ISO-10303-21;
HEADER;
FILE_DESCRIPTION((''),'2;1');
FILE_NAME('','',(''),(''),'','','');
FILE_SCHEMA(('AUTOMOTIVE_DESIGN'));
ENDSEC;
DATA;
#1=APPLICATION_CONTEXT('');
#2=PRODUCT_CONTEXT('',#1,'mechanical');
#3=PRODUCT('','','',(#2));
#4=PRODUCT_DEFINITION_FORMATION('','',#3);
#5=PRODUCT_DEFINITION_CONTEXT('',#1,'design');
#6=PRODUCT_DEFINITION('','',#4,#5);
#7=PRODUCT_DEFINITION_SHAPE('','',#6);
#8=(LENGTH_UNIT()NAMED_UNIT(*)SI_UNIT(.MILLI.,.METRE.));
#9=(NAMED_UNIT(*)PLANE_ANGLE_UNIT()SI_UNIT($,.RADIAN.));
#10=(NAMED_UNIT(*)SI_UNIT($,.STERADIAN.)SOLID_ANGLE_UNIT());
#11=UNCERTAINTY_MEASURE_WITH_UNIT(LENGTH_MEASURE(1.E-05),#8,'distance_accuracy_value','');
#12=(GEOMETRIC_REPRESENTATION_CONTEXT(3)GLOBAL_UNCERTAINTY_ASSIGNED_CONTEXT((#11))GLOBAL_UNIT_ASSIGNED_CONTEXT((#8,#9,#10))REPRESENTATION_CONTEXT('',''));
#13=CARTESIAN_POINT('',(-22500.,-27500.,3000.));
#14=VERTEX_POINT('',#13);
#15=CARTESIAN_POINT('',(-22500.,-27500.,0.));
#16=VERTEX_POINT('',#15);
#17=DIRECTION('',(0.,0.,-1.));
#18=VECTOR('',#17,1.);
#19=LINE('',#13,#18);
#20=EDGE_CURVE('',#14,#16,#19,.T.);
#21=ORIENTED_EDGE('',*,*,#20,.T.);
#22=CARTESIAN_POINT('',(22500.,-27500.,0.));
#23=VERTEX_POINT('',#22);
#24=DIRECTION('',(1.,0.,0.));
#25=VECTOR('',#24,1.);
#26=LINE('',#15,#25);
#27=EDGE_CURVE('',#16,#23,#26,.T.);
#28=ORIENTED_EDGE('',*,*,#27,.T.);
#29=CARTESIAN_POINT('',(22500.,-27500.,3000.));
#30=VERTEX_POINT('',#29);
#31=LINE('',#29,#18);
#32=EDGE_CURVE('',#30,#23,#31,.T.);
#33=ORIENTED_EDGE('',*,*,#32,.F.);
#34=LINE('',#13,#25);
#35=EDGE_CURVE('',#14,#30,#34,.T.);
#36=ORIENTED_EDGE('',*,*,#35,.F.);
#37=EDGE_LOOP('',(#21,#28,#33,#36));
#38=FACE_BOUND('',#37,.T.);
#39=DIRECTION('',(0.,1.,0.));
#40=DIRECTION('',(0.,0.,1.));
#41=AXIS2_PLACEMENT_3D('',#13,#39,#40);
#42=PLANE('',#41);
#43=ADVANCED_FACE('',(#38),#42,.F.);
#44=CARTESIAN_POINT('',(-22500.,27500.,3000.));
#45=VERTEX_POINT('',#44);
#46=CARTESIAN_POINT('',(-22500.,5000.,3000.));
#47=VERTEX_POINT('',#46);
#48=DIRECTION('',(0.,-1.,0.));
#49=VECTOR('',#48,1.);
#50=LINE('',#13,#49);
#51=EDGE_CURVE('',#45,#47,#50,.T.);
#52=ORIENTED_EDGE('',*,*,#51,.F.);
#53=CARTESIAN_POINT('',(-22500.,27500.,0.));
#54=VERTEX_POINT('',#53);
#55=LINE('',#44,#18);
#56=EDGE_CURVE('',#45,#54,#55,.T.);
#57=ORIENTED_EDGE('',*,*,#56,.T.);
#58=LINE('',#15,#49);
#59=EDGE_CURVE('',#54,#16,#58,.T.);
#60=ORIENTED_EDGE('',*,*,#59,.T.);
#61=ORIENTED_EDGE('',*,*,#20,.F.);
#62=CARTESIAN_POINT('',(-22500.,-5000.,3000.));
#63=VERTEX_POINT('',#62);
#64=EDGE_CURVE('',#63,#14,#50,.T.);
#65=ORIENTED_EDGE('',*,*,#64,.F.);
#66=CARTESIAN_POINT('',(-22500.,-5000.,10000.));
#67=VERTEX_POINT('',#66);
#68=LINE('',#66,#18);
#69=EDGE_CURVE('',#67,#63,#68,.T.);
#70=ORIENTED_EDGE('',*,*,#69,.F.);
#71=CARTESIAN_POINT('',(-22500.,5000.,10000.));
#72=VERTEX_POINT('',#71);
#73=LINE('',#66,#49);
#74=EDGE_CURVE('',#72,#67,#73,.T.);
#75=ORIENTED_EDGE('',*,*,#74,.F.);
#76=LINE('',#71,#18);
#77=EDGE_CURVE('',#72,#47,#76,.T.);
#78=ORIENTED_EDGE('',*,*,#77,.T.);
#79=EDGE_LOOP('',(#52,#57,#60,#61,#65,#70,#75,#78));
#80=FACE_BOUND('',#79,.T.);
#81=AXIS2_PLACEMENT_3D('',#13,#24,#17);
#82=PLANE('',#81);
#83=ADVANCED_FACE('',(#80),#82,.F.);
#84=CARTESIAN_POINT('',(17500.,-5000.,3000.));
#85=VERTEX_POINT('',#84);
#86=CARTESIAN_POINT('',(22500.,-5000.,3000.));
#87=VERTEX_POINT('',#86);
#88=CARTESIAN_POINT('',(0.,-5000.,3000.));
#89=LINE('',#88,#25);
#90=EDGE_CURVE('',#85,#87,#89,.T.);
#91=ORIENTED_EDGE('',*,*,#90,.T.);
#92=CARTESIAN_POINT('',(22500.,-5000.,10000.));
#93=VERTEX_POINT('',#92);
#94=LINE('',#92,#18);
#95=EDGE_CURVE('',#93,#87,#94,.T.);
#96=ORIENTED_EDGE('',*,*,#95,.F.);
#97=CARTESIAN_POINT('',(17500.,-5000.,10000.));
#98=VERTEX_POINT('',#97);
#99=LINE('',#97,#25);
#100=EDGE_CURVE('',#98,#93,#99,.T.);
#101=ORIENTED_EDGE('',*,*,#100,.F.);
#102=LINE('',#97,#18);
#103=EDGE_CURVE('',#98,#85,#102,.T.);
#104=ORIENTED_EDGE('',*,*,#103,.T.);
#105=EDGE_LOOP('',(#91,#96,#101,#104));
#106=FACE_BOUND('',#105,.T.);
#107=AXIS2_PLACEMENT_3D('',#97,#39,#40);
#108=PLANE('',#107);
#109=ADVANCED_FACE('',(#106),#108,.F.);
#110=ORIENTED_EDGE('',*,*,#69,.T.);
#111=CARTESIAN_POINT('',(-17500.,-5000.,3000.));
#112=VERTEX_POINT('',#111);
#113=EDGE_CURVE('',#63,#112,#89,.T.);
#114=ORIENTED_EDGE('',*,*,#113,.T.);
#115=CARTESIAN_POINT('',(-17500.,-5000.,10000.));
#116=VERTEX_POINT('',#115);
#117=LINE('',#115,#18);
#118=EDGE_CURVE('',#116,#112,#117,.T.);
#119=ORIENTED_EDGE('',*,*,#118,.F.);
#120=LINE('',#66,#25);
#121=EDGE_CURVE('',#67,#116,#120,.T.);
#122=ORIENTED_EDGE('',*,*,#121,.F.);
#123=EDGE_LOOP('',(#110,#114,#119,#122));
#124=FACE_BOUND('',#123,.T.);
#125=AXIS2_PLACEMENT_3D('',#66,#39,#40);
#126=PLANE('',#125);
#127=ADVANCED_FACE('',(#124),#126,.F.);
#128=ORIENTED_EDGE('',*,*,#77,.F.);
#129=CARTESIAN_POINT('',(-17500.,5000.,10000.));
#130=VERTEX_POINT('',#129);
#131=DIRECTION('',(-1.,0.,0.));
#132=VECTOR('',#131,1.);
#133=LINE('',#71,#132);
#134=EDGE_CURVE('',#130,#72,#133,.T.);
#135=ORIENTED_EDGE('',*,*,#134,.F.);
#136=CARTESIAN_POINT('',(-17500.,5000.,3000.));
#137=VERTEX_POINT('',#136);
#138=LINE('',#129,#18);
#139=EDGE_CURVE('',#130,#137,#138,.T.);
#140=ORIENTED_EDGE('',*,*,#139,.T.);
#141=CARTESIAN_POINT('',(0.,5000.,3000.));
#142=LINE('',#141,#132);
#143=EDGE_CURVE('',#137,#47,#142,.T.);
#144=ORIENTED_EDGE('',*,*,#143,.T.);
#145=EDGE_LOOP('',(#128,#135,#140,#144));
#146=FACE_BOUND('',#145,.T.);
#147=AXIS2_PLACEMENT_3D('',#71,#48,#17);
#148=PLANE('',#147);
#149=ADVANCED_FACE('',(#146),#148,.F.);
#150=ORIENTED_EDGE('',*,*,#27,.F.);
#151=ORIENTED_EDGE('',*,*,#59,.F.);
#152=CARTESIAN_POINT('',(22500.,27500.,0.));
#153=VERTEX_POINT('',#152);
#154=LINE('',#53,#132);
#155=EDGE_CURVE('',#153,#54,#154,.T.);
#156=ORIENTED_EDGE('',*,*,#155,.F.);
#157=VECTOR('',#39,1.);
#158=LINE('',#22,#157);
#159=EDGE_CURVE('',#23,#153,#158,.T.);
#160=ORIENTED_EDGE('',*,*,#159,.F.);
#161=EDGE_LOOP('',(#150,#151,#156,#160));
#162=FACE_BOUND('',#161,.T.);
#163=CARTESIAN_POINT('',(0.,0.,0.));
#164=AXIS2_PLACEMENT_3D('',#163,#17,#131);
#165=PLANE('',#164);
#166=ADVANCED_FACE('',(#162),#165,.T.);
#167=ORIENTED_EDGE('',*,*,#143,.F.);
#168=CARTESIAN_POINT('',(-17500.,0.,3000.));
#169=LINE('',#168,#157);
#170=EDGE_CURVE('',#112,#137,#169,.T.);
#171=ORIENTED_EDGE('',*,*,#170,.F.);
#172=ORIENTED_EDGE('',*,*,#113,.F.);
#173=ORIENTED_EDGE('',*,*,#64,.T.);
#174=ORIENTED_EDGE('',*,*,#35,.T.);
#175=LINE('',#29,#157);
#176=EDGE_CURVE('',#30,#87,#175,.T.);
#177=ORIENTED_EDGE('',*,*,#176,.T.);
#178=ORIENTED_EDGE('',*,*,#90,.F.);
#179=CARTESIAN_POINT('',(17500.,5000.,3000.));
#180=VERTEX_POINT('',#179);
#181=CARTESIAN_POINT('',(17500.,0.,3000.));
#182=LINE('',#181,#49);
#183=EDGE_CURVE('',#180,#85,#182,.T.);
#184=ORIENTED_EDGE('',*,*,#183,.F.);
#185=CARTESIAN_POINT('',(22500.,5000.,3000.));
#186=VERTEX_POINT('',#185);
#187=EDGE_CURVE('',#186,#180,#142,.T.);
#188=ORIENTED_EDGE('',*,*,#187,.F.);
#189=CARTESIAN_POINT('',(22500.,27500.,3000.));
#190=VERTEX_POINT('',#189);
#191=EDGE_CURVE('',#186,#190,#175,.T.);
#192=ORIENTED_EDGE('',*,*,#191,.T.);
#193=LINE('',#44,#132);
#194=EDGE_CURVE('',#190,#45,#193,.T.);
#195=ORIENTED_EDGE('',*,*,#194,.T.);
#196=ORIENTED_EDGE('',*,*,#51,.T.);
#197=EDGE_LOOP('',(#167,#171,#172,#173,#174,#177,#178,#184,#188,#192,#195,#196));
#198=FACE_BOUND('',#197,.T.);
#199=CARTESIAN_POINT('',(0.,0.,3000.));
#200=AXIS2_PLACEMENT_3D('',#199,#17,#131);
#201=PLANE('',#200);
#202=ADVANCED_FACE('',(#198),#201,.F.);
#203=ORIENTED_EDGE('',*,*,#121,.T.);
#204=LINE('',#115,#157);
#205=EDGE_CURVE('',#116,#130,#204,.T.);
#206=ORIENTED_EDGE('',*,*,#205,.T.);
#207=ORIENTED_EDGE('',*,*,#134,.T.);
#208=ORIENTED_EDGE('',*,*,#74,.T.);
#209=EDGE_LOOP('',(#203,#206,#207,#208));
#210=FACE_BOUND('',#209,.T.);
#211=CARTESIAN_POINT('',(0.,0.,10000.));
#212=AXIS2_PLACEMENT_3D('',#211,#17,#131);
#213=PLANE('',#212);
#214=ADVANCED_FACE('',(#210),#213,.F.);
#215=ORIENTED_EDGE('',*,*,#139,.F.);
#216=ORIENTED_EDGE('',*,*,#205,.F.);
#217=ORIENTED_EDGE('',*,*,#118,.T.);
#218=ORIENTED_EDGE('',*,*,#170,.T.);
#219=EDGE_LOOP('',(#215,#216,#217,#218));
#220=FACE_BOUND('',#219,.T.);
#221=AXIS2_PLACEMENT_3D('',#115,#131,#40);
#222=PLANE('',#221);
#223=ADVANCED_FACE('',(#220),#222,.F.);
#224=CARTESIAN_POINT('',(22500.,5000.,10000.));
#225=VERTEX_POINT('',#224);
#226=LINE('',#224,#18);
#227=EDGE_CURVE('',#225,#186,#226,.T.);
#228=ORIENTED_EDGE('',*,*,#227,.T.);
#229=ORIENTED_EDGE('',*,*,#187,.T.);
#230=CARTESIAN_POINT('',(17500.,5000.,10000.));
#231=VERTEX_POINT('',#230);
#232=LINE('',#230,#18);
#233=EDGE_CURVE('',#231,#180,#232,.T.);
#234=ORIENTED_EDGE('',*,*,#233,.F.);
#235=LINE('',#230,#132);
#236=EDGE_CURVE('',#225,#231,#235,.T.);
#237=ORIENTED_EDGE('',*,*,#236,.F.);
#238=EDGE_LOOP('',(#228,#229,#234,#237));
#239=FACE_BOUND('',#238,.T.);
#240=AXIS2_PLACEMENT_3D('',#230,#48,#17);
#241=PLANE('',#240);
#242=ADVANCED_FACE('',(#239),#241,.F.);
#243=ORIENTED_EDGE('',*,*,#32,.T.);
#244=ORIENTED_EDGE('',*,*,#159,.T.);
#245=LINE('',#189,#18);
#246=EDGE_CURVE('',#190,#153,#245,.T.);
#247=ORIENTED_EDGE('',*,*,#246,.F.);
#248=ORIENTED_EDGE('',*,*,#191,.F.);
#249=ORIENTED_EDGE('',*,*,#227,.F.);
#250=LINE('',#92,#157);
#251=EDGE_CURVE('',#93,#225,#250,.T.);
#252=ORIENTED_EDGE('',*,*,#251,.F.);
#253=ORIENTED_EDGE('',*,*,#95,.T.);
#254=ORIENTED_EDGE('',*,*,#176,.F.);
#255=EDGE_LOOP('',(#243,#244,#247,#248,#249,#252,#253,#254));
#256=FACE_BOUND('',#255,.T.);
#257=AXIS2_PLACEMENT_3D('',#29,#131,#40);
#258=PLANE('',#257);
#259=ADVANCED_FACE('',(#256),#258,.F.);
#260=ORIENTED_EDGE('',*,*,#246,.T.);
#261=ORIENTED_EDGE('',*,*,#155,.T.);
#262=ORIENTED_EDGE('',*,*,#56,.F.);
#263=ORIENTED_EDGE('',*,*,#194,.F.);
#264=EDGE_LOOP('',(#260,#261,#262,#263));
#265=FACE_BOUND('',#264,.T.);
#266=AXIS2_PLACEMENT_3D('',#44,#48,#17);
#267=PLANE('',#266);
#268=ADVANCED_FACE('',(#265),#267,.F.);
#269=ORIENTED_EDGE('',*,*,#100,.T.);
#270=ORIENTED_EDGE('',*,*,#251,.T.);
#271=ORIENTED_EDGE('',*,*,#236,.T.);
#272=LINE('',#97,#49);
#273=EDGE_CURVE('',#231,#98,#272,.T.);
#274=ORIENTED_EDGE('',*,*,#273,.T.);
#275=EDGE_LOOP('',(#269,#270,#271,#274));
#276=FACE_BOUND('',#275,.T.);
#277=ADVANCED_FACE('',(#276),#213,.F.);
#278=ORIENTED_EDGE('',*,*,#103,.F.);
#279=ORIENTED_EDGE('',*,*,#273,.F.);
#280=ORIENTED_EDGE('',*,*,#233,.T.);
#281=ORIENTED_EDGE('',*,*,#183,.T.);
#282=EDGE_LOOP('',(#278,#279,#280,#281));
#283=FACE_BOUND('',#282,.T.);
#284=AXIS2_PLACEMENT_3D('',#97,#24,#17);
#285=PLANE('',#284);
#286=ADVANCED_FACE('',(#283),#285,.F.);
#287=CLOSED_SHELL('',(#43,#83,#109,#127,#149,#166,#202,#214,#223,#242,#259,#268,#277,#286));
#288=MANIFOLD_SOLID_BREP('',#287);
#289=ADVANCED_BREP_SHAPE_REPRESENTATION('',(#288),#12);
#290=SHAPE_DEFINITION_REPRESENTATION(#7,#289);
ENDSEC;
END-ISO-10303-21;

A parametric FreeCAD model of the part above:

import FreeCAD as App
import Part
import Sketcher
from FreeCAD import Vector
Q = App.Units.Quantity

doc = App.newDocument("Part")
body = doc.addObject("PartDesign::Body", "Body")

sketch1 = body.newObject("Sketcher::SketchObject", "Sketch")
sketch1.AttachmentSupport = (doc.getObject("XY_Plane"), [""])
sketch1.MapMode = "FlatFace"
sketch1.addGeometry([
    Part.LineSegment(Vector(-22500, 27500, 0), Vector(-22500, -27500, 0)),
    Part.LineSegment(Vector(-22500, -27500, 0), Vector(22500, -27500, 0)),
    Part.LineSegment(Vector(22500, -27500, 0), Vector(22500, 27500, 0)),
    Part.LineSegment(Vector(22500, 27500, 0), Vector(-22500, 27500, 0)),
], False)
sketch1.addConstraint([
    Sketcher.Constraint("Coincident", 0, 2, 1, 1),
    Sketcher.Constraint("Coincident", 1, 2, 2, 1),
    Sketcher.Constraint("Coincident", 2, 2, 3, 1),
    Sketcher.Constraint("Coincident", 3, 2, 0, 1),
    Sketcher.Constraint("Vertical", 0),
    Sketcher.Constraint("Horizontal", 1),
    Sketcher.Constraint("Vertical", 2),
    Sketcher.Constraint("Horizontal", 3),
    Sketcher.Constraint("Symmetric", 0, 2, 2, 2, -1, 1),
    Sketcher.Constraint("DistanceX", 1, 1, 1, 2, Q("45000 mm")),
    Sketcher.Constraint("DistanceY", 0, 2, 0, 1, Q("55000 mm")),
])
pad1 = body.newObject("PartDesign::Pad", "Pad")
pad1.Profile = sketch1
pad1.Length = 3000

sketch2 = body.newObject("Sketcher::SketchObject", "Sketch001")
sketch2.AttachmentSupport = (doc.getObject("XY_Plane"), [""])
sketch2.MapMode = "FlatFace"
sketch2.addGeometry([
    Part.LineSegment(Vector(-22500, 5000, 0), Vector(-22500, -5000, 0)),
    Part.LineSegment(Vector(-22500, -5000, 0), Vector(-17500, -5000, 0)),
    Part.LineSegment(Vector(-17500, -5000, 0), Vector(-17500, 5000, 0)),
    Part.LineSegment(Vector(-17500, 5000, 0), Vector(-22500, 5000, 0)),
    Part.LineSegment(Vector(17500, 5000, 0), Vector(17500, -5000, 0)),
    Part.LineSegment(Vector(17500, -5000, 0), Vector(22500, -5000, 0)),
    Part.LineSegment(Vector(22500, -5000, 0), Vector(22500, 5000, 0)),
    Part.LineSegment(Vector(22500, 5000, 0), Vector(17500, 5000, 0)),
], False)
sketch2.addConstraint([
    Sketcher.Constraint("Coincident", 0, 2, 1, 1),
    Sketcher.Constraint("Coincident", 1, 2, 2, 1),
    Sketcher.Constraint("Coincident", 2, 2, 3, 1),
    Sketcher.Constraint("Coincident", 3, 2, 0, 1),
    Sketcher.Constraint("Coincident", 4, 2, 5, 1),
    Sketcher.Constraint("Coincident", 5, 2, 6, 1),
    Sketcher.Constraint("Coincident", 6, 2, 7, 1),
    Sketcher.Constraint("Coincident", 7, 2, 4, 1),
    Sketcher.Constraint("Vertical", 0),
    Sketcher.Constraint("Horizontal", 1),
    Sketcher.Constraint("Vertical", 2),
    Sketcher.Constraint("Horizontal", 3),
    Sketcher.Constraint("Vertical", 4),
    Sketcher.Constraint("Horizontal", 5),
    Sketcher.Constraint("Vertical", 6),
    Sketcher.Constraint("Horizontal", 7),
    Sketcher.Constraint("Symmetric", 2, 2, 4, 2, -1, 1),
    Sketcher.Constraint("Symmetric", 0, 2, 6, 2, -1, 1),
    Sketcher.Constraint("Horizontal", 1, 2, 4, 2),
    Sketcher.Constraint("DistanceX", 1, 1, 1, 2, Q("5000 mm")),
    Sketcher.Constraint("DistanceY", 0, 2, 0, 1, Q("10000 mm")),
    Sketcher.Constraint("DistanceX", 0, 2, -1, 1, Q("22500 mm")),
])
pad2 = body.newObject("PartDesign::Pad", "Pad001")
pad2.Profile = sketch2
pad2.Length = 10000

doc.recompute()
